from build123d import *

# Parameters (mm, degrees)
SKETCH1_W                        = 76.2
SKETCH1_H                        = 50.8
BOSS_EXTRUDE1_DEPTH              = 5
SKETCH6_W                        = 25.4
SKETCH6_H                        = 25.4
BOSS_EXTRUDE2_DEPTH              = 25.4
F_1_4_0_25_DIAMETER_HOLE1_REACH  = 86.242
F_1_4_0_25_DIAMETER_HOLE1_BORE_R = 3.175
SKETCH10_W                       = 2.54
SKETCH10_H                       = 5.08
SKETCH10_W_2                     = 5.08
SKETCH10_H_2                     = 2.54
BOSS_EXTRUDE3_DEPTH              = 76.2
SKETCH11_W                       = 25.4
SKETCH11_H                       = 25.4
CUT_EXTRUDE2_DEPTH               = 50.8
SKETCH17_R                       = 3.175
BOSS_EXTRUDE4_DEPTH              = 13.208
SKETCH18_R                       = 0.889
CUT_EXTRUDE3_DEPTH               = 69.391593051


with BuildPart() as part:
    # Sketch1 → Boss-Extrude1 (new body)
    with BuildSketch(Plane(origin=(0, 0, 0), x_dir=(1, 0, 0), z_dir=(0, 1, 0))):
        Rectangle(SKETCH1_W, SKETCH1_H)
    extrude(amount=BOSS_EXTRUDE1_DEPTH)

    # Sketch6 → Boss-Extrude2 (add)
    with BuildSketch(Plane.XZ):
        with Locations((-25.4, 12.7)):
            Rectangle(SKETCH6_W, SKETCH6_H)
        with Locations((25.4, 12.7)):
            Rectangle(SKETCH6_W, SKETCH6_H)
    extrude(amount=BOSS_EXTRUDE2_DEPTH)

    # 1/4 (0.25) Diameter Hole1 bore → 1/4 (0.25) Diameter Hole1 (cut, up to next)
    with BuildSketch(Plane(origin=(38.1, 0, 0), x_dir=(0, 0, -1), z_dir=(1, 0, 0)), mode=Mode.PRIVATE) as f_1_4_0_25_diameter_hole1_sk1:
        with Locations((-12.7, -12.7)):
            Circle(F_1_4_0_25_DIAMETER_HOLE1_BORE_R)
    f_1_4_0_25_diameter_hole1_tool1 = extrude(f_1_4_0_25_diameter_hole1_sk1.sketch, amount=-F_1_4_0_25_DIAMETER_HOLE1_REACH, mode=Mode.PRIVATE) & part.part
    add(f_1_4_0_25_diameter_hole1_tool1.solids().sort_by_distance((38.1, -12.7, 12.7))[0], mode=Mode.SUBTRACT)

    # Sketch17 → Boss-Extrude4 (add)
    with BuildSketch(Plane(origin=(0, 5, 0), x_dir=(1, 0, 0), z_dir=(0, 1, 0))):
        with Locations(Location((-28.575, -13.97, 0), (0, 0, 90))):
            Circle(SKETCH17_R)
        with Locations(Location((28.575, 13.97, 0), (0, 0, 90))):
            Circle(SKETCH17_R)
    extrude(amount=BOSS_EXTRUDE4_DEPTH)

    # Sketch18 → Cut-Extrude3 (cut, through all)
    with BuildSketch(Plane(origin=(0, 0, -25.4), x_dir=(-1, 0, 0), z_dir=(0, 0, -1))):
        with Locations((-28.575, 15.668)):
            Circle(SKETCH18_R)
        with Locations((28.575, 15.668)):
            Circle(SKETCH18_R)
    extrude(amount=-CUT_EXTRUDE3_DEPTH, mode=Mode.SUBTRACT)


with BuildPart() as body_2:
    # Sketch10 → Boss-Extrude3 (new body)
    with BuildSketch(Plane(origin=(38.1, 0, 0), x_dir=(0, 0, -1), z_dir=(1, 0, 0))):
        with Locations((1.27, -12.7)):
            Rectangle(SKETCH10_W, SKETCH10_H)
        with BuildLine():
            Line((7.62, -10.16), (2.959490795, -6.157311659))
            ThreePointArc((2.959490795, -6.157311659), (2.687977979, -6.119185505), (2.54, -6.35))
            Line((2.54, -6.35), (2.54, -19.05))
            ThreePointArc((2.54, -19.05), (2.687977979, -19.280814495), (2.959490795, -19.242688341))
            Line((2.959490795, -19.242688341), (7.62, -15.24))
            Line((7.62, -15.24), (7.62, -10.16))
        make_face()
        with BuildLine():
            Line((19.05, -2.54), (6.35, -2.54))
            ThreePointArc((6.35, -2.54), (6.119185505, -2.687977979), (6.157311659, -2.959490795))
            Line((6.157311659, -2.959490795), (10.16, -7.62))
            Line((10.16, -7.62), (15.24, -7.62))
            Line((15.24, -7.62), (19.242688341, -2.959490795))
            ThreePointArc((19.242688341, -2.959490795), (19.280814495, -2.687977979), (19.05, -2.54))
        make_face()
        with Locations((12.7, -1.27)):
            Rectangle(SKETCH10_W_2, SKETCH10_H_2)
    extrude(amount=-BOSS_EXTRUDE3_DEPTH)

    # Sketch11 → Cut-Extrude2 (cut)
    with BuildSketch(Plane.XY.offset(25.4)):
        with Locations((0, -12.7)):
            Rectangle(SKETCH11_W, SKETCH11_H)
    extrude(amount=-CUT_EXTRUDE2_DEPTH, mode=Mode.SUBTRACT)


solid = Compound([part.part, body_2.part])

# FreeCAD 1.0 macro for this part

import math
import FreeCAD as App
import Part
import Sketcher
from FreeCAD import Vector
Q = App.Units.Quantity

doc = App.newDocument("Part")
params = doc.addObject("Spreadsheet::Sheet", "Params")
for row, (alias, value) in enumerate([
    ("sketch1_width", "3 in"),
    ("sketch1_height", "2 in"),
    ("pad1_length", "5 mm"),
    ("sketch2_width", "1 in"),
    ("pad2_length", "1 in"),
    ("sketch3_diameter", "0.25 in"),
    ("sketch4_diameter", "0.25 in"),
    ("pad3_length", "0.52 in"),
    ("sketch5_diameter", "0.07 in"),
    ("sketch6_radius", "0.01 in"),
    ("sketch6_width", "0.2 in"),
    ("sketch6_width2", "0.1 in"),
    ("sketch6_width3", "0.15 in"),
    ("pad4_length", "3 in"),
    ("sketch7_width", "1 in"),
    ("pocket3_length", "2 in"),
], start=1):
    params.set(f"A{row}", alias)
    params.set(f"B{row}", "=" + value)
    params.setAlias(f"B{row}", alias)

body = doc.addObject("PartDesign::Body", "Body")

sketch1 = body.newObject("Sketcher::SketchObject", "Sketch")
sketch1.AttachmentSupport = (doc.getObject("XZ_Plane"), [""])
sketch1.MapMode = "FlatFace"
sketch1.addGeometry([
    Part.LineSegment(Vector(-38.1, -25.4, 0), Vector(-38.1, 25.4, 0)),
    Part.LineSegment(Vector(-38.1, 25.4, 0), Vector(38.1, 25.4, 0)),
    Part.LineSegment(Vector(38.1, 25.4, 0), Vector(38.1, -25.4, 0)),
    Part.LineSegment(Vector(38.1, -25.4, 0), Vector(-38.1, -25.4, 0)),
], False)
sketch1.addConstraint([
    Sketcher.Constraint("Coincident", 0, 2, 1, 1),
    Sketcher.Constraint("Coincident", 1, 2, 2, 1),
    Sketcher.Constraint("Coincident", 2, 2, 3, 1),
    Sketcher.Constraint("Coincident", 3, 2, 0, 1),
    Sketcher.Constraint("Vertical", 0),
    Sketcher.Constraint("Horizontal", 1),
    Sketcher.Constraint("Vertical", 2),
    Sketcher.Constraint("Horizontal", 3),
    Sketcher.Constraint("Symmetric", 0, 2, 2, 2, -1, 1),
    Sketcher.Constraint("DistanceX", 1, 1, 1, 2, Q("3 in")),
    Sketcher.Constraint("DistanceY", 0, 1, 0, 2, Q("2 in")),
])
sketch1.setExpression("Constraints[9]", "Params.sketch1_width")
sketch1.setExpression("Constraints[10]", "Params.sketch1_height")
pad1 = body.newObject("PartDesign::Pad", "Pad")
pad1.Profile = sketch1
pad1.setExpression("Length", "Params.pad1_length")
pad1.Reversed = True

sketch2 = body.newObject("Sketcher::SketchObject", "Sketch001")
sketch2.AttachmentSupport = (doc.getObject("XZ_Plane"), [""])
sketch2.MapMode = "FlatFace"
sketch2.addGeometry([
    Part.LineSegment(Vector(-38.1, 25.4, 0), Vector(-38.1, 0, 0)),
    Part.LineSegment(Vector(-38.1, 0, 0), Vector(-12.7, 0, 0)),
    Part.LineSegment(Vector(-12.7, 0, 0), Vector(-12.7, 25.4, 0)),
    Part.LineSegment(Vector(-12.7, 25.4, 0), Vector(-38.1, 25.4, 0)),
    Part.LineSegment(Vector(12.7, 25.4, 0), Vector(12.7, 0, 0)),
    Part.LineSegment(Vector(12.7, 0, 0), Vector(38.1, 0, 0)),
    Part.LineSegment(Vector(38.1, 0, 0), Vector(38.1, 25.4, 0)),
    Part.LineSegment(Vector(38.1, 25.4, 0), Vector(12.7, 25.4, 0)),
], False)
sketch2.addConstraint([
    Sketcher.Constraint("Coincident", 0, 2, 1, 1),
    Sketcher.Constraint("Coincident", 1, 2, 2, 1),
    Sketcher.Constraint("Coincident", 2, 2, 3, 1),
    Sketcher.Constraint("Coincident", 3, 2, 0, 1),
    Sketcher.Constraint("Coincident", 4, 2, 5, 1),
    Sketcher.Constraint("Coincident", 5, 2, 6, 1),
    Sketcher.Constraint("Coincident", 6, 2, 7, 1),
    Sketcher.Constraint("Coincident", 7, 2, 4, 1),
    Sketcher.Constraint("Vertical", 0),
    Sketcher.Constraint("Horizontal", 1),
    Sketcher.Constraint("Vertical", 2),
    Sketcher.Constraint("Horizontal", 3),
    Sketcher.Constraint("Vertical", 4),
    Sketcher.Constraint("Horizontal", 5),
    Sketcher.Constraint("Vertical", 6),
    Sketcher.Constraint("Horizontal", 7),
    Sketcher.Constraint("Symmetric", 1, 2, 4, 2, -1, 1),
    Sketcher.Constraint("Symmetric", 0, 2, 5, 2, -2),
    Sketcher.Constraint("Horizontal", 3, 2, 6, 2),
    Sketcher.Constraint("Equal", 7, 0),
    Sketcher.Constraint("DistanceX", 1, 1, 1, 2, Q("1 in")),
    Sketcher.Constraint("DistanceX", 1, 2, 4, 2, Q("1 in")),
])
sketch2.setExpression("Constraints[20]", "Params.sketch2_width")
pad2 = body.newObject("PartDesign::Pad", "Pad001")
pad2.Profile = sketch2
pad2.setExpression("Length", "Params.pad2_length")

sketch3 = body.newObject("Sketcher::SketchObject", "Sketch002")
sketch3.AttachmentSupport = (doc.getObject("YZ_Plane"), [""])
sketch3.MapMode = "FlatFace"
sketch3.AttachmentOffset = App.Placement(Vector(0, 0, 1.5 * 25.4), App.Rotation())
sketch3.addGeometry(Part.Circle(Vector(-12.7, 12.7, 0), Vector(0, 0, 1), 3.175), False)
sketch3.addConstraint([
    Sketcher.Constraint("Diameter", 0, Q("0.25 in")),
    Sketcher.Constraint("DistanceX", 0, 3, -1, 1, Q("0.5 in")),
    Sketcher.Constraint("DistanceY", -1, 1, 0, 3, Q("0.5 in")),
])
sketch3.setExpression("Constraints[0]", "Params.sketch3_diameter")
pocket1 = body.newObject("PartDesign::Pocket", "Pocket")
pocket1.Profile = sketch3
pocket1.Type = "UpToFirst"

sketch4 = body.newObject("Sketcher::SketchObject", "Sketch003")
sketch4.AttachmentSupport = (doc.getObject("XZ_Plane"), [""])
sketch4.MapMode = "FlatFace"
sketch4.AttachmentOffset = App.Placement(Vector(0, 0, -5), App.Rotation())
sketch4.addGeometry([
    Part.Circle(Vector(-28.575, 13.97, 0), Vector(0, 0, 1), 3.175),
    Part.Circle(Vector(28.575, -13.97, 0), Vector(0, 0, 1), 3.175),
], False)
sketch4.addConstraint([
    Sketcher.Constraint("Equal", 0, 1),
    Sketcher.Constraint("Symmetric", 0, 3, 1, 3, -1, 1),
    Sketcher.Constraint("Diameter", 0, Q("0.25 in")),
    Sketcher.Constraint("DistanceY", 1, 3, 0, 3, Q("1.1 in")),
    Sketcher.Constraint("DistanceX", 0, 3, 1, 3, Q("2.25 in")),
])
sketch4.setExpression("Constraints[2]", "Params.sketch4_diameter")
pad3 = body.newObject("PartDesign::Pad", "Pad002")
pad3.Profile = sketch4
pad3.setExpression("Length", "Params.pad3_length")
pad3.Reversed = True

sketch5 = body.newObject("Sketcher::SketchObject", "Sketch004")
sketch5.AttachmentSupport = (doc.getObject("XY_Plane"), [""])
sketch5.MapMode = "FlatFace"
sketch5.AttachmentOffset = App.Placement(Vector(0, 0, -1 * 25.4), App.Rotation())
sketch5.addGeometry([
    Part.Circle(Vector(28.575, 15.668, 0), Vector(0, 0, 1), 0.889),
    Part.Circle(Vector(-28.575, 15.668, 0), Vector(0, 0, 1), 0.889),
], False)
sketch5.addConstraint([
    Sketcher.Constraint("Equal", 0, 1),
    Sketcher.Constraint("Symmetric", 0, 3, 1, 3, -2),
    Sketcher.Constraint("Diameter", 0, Q("0.07 in")),
    Sketcher.Constraint("DistanceX", 1, 3, 0, 3, Q("2.25 in")),
    Sketcher.Constraint("DistanceY", -1, 1, 0, 3, Q("15.668 mm")),
])
sketch5.setExpression("Constraints[2]", "Params.sketch5_diameter")
pocket2 = body.newObject("PartDesign::Pocket", "Pocket001")
pocket2.Profile = sketch5
pocket2.Type = "ThroughAll"
pocket2.Reversed = True
body2 = doc.addObject("PartDesign::Body", "Body001")
body2.AllowCompound = True

sketch6 = body2.newObject("Sketcher::SketchObject", "Sketch005")
sketch6.AttachmentSupport = (doc.getObject("YZ_Plane001"), [""])
sketch6.MapMode = "FlatFace"
sketch6.AttachmentOffset = App.Placement(Vector(0, 0, 1.5 * 25.4), App.Rotation())
sketch6.addGeometry([
    Part.LineSegment(Vector(-10.16, 0, 0), Vector(-15.24, 0, 0)),
    Part.LineSegment(Vector(-15.24, 0, 0), Vector(-15.24, -2.54, 0)),
    Part.LineSegment(Vector(-15.24, -2.54, 0), Vector(-19.05, -2.54, 0)),
    Part.ArcOfCircle(Part.Circle(Vector(-19.05, -2.794, 0), Vector(0, 0, 1), 0.254), math.radians(90), math.radians(220.657704)),
    Part.LineSegment(Vector(-19.242688, -2.959491, 0), Vector(-15.24, -7.62, 0)),
    Part.LineSegment(Vector(-15.24, -7.62, 0), Vector(-10.16, -7.62, 0)),
    Part.LineSegment(Vector(-10.16, -7.62, 0), Vector(-6.157312, -2.959491, 0)),
    Part.ArcOfCircle(Part.Circle(Vector(-6.35, -2.794, 0), Vector(0, 0, 1), 0.254), math.radians(-40.657704), math.radians(90)),
    Part.LineSegment(Vector(-6.35, -2.54, 0), Vector(-10.16, -2.54, 0)),
    Part.LineSegment(Vector(-10.16, -2.54, 0), Vector(-10.16, 0, 0)),
    Part.LineSegment(Vector(-2.54, -19.05, 0), Vector(-2.54, -15.24, 0)),
    Part.LineSegment(Vector(-2.54, -15.24, 0), Vector(0, -15.24, 0)),
    Part.LineSegment(Vector(0, -15.24, 0), Vector(0, -10.16, 0)),
    Part.LineSegment(Vector(0, -10.16, 0), Vector(-2.54, -10.16, 0)),
    Part.LineSegment(Vector(-2.54, -10.16, 0), Vector(-2.54, -6.35, 0)),
    Part.ArcOfCircle(Part.Circle(Vector(-2.794, -6.35, 0), Vector(0, 0, 1), 0.254), math.radians(0), math.radians(130.657704)),
    Part.LineSegment(Vector(-2.959491, -6.157312, 0), Vector(-7.62, -10.16, 0)),
    Part.LineSegment(Vector(-7.62, -10.16, 0), Vector(-7.62, -15.24, 0)),
    Part.LineSegment(Vector(-7.62, -15.24, 0), Vector(-2.959491, -19.242688, 0)),
    Part.ArcOfCircle(Part.Circle(Vector(-2.794, -19.05, 0), Vector(0, 0, 1), 0.254), math.radians(-130.657704), math.radians(0)),
], False)
sketch6.addConstraint([
    Sketcher.Constraint("Coincident", 0, 2, 1, 1),
    Sketcher.Constraint("Coincident", 1, 2, 2, 1),
    Sketcher.Constraint("Tangent", 2, 2, 3, 1),
    Sketcher.Constraint("Tangent", 3, 2, 4, 1),
    Sketcher.Constraint("Coincident", 4, 2, 5, 1),
    Sketcher.Constraint("Coincident", 5, 2, 6, 1),
    Sketcher.Constraint("Tangent", 6, 2, 7, 1),
    Sketcher.Constraint("Tangent", 7, 2, 8, 1),
    Sketcher.Constraint("Coincident", 8, 2, 9, 1),
    Sketcher.Constraint("Coincident", 9, 2, 0, 1),
    Sketcher.Constraint("Coincident", 10, 2, 11, 1),
    Sketcher.Constraint("Coincident", 11, 2, 12, 1),
    Sketcher.Constraint("Coincident", 12, 2, 13, 1),
    Sketcher.Constraint("Coincident", 13, 2, 14, 1),
    Sketcher.Constraint("Tangent", 14, 2, 15, 1),
    Sketcher.Constraint("Tangent", 15, 2, 16, 1),
    Sketcher.Constraint("Coincident", 16, 2, 17, 1),
    Sketcher.Constraint("Coincident", 17, 2, 18, 1),
    Sketcher.Constraint("Tangent", 18, 2, 19, 1),
    Sketcher.Constraint("Tangent", 19, 2, 10, 1),
    Sketcher.Constraint("Horizontal", 0),
    Sketcher.Constraint("Vertical", 1),
    Sketcher.Constraint("Horizontal", 2),
    Sketcher.Constraint("Horizontal", 5),
    Sketcher.Constraint("Horizontal", 8),
    Sketcher.Constraint("Vertical", 9),
    Sketcher.Constraint("Vertical", 10),
    Sketcher.Constraint("Horizontal", 11),
    Sketcher.Constraint("Vertical", 12),
    Sketcher.Constraint("Horizontal", 13),
    Sketcher.Constraint("Vertical", 14),
    Sketcher.Constraint("Vertical", 17),
    Sketcher.Constraint("Equal", 3, 7),
    Sketcher.Constraint("Equal", 7, 15),
    Sketcher.Constraint("Equal", 15, 19),
    Sketcher.Constraint("PointOnObject", 0, 2, -1),
    Sketcher.Constraint("PointOnObject", 11, 2, -2),
    Sketcher.Constraint("Perpendicular", 4, 16),
    Sketcher.Constraint("Perpendicular", 6, 18),
    Sketcher.Constraint("Horizontal", 3, 3, 7, 3),
    Sketcher.Constraint("Horizontal", 3, 2, 6, 2),
    Sketcher.Constraint("Horizontal", 13, 2, 16, 2),
    Sketcher.Constraint("Horizontal", 11, 2, 17, 2),
    Sketcher.Constraint("Vertical", 15, 3, 19, 3),
    Sketcher.Constraint("Vertical", 1, 2, 4, 2),
    Sketcher.Constraint("Vertical", 5, 2, 8, 2),
    Sketcher.Constraint("Equal", 13, 1),
    Sketcher.Constraint("Equal", 8, 10),
    Sketcher.Constraint("Equal", 5, 12),
    Sketcher.Constraint("Radius", 3, Q("0.01 in")),
    Sketcher.Constraint("DistanceX", 0, 2, 0, 1, Q("0.2 in")),
    Sketcher.Constraint("DistanceX", 11, 1, 11, 2, Q("0.1 in")),
    Sketcher.Constraint("DistanceX", 2, 2, 2, 1, Q("0.15 in")),
    Sketcher.Constraint("DistanceX", 0, 2, -1, 1, Q("0.6 in")),
    Sketcher.Constraint("DistanceY", 4, 2, -1, 1, Q("0.3 in")),
    Sketcher.Constraint("DistanceY", 10, 2, -1, 1, Q("0.6 in")),
])
sketch6.setExpression("Constraints[49]", "Params.sketch6_radius")
sketch6.setExpression("Constraints[50]", "Params.sketch6_width")
sketch6.setExpression("Constraints[51]", "Params.sketch6_width2")
sketch6.setExpression("Constraints[52]", "Params.sketch6_width3")
pad4 = body2.newObject("PartDesign::Pad", "Pad003")
pad4.Profile = sketch6
pad4.setExpression("Length", "Params.pad4_length")
pad4.Reversed = True

sketch7 = body2.newObject("Sketcher::SketchObject", "Sketch006")
sketch7.AttachmentSupport = (doc.getObject("XY_Plane001"), [""])
sketch7.MapMode = "FlatFace"
sketch7.AttachmentOffset = App.Placement(Vector(0, 0, 1 * 25.4), App.Rotation())
sketch7.addGeometry([
    Part.LineSegment(Vector(-12.7, 0, 0), Vector(-12.7, -25.4, 0)),
    Part.LineSegment(Vector(-12.7, -25.4, 0), Vector(12.7, -25.4, 0)),
    Part.LineSegment(Vector(12.7, -25.4, 0), Vector(12.7, 0, 0)),
    Part.LineSegment(Vector(12.7, 0, 0), Vector(-12.7, 0, 0)),
], False)
sketch7.addConstraint([
    Sketcher.Constraint("Coincident", 0, 2, 1, 1),
    Sketcher.Constraint("Coincident", 1, 2, 2, 1),
    Sketcher.Constraint("Coincident", 2, 2, 3, 1),
    Sketcher.Constraint("Coincident", 3, 2, 0, 1),
    Sketcher.Constraint("Vertical", 0),
    Sketcher.Constraint("Horizontal", 1),
    Sketcher.Constraint("Vertical", 2),
    Sketcher.Constraint("Horizontal", 3),
    Sketcher.Constraint("Symmetric", 2, 2, 3, 2, -1, 1),
    Sketcher.Constraint("Equal", 3, 0),
    Sketcher.Constraint("DistanceX", 1, 1, 1, 2, Q("1 in")),
])
sketch7.setExpression("Constraints[10]", "Params.sketch7_width")
pocket3 = body2.newObject("PartDesign::Pocket", "Pocket002")
pocket3.Profile = sketch7
pocket3.setExpression("Length", "Params.pocket3_length")

doc.recompute()
